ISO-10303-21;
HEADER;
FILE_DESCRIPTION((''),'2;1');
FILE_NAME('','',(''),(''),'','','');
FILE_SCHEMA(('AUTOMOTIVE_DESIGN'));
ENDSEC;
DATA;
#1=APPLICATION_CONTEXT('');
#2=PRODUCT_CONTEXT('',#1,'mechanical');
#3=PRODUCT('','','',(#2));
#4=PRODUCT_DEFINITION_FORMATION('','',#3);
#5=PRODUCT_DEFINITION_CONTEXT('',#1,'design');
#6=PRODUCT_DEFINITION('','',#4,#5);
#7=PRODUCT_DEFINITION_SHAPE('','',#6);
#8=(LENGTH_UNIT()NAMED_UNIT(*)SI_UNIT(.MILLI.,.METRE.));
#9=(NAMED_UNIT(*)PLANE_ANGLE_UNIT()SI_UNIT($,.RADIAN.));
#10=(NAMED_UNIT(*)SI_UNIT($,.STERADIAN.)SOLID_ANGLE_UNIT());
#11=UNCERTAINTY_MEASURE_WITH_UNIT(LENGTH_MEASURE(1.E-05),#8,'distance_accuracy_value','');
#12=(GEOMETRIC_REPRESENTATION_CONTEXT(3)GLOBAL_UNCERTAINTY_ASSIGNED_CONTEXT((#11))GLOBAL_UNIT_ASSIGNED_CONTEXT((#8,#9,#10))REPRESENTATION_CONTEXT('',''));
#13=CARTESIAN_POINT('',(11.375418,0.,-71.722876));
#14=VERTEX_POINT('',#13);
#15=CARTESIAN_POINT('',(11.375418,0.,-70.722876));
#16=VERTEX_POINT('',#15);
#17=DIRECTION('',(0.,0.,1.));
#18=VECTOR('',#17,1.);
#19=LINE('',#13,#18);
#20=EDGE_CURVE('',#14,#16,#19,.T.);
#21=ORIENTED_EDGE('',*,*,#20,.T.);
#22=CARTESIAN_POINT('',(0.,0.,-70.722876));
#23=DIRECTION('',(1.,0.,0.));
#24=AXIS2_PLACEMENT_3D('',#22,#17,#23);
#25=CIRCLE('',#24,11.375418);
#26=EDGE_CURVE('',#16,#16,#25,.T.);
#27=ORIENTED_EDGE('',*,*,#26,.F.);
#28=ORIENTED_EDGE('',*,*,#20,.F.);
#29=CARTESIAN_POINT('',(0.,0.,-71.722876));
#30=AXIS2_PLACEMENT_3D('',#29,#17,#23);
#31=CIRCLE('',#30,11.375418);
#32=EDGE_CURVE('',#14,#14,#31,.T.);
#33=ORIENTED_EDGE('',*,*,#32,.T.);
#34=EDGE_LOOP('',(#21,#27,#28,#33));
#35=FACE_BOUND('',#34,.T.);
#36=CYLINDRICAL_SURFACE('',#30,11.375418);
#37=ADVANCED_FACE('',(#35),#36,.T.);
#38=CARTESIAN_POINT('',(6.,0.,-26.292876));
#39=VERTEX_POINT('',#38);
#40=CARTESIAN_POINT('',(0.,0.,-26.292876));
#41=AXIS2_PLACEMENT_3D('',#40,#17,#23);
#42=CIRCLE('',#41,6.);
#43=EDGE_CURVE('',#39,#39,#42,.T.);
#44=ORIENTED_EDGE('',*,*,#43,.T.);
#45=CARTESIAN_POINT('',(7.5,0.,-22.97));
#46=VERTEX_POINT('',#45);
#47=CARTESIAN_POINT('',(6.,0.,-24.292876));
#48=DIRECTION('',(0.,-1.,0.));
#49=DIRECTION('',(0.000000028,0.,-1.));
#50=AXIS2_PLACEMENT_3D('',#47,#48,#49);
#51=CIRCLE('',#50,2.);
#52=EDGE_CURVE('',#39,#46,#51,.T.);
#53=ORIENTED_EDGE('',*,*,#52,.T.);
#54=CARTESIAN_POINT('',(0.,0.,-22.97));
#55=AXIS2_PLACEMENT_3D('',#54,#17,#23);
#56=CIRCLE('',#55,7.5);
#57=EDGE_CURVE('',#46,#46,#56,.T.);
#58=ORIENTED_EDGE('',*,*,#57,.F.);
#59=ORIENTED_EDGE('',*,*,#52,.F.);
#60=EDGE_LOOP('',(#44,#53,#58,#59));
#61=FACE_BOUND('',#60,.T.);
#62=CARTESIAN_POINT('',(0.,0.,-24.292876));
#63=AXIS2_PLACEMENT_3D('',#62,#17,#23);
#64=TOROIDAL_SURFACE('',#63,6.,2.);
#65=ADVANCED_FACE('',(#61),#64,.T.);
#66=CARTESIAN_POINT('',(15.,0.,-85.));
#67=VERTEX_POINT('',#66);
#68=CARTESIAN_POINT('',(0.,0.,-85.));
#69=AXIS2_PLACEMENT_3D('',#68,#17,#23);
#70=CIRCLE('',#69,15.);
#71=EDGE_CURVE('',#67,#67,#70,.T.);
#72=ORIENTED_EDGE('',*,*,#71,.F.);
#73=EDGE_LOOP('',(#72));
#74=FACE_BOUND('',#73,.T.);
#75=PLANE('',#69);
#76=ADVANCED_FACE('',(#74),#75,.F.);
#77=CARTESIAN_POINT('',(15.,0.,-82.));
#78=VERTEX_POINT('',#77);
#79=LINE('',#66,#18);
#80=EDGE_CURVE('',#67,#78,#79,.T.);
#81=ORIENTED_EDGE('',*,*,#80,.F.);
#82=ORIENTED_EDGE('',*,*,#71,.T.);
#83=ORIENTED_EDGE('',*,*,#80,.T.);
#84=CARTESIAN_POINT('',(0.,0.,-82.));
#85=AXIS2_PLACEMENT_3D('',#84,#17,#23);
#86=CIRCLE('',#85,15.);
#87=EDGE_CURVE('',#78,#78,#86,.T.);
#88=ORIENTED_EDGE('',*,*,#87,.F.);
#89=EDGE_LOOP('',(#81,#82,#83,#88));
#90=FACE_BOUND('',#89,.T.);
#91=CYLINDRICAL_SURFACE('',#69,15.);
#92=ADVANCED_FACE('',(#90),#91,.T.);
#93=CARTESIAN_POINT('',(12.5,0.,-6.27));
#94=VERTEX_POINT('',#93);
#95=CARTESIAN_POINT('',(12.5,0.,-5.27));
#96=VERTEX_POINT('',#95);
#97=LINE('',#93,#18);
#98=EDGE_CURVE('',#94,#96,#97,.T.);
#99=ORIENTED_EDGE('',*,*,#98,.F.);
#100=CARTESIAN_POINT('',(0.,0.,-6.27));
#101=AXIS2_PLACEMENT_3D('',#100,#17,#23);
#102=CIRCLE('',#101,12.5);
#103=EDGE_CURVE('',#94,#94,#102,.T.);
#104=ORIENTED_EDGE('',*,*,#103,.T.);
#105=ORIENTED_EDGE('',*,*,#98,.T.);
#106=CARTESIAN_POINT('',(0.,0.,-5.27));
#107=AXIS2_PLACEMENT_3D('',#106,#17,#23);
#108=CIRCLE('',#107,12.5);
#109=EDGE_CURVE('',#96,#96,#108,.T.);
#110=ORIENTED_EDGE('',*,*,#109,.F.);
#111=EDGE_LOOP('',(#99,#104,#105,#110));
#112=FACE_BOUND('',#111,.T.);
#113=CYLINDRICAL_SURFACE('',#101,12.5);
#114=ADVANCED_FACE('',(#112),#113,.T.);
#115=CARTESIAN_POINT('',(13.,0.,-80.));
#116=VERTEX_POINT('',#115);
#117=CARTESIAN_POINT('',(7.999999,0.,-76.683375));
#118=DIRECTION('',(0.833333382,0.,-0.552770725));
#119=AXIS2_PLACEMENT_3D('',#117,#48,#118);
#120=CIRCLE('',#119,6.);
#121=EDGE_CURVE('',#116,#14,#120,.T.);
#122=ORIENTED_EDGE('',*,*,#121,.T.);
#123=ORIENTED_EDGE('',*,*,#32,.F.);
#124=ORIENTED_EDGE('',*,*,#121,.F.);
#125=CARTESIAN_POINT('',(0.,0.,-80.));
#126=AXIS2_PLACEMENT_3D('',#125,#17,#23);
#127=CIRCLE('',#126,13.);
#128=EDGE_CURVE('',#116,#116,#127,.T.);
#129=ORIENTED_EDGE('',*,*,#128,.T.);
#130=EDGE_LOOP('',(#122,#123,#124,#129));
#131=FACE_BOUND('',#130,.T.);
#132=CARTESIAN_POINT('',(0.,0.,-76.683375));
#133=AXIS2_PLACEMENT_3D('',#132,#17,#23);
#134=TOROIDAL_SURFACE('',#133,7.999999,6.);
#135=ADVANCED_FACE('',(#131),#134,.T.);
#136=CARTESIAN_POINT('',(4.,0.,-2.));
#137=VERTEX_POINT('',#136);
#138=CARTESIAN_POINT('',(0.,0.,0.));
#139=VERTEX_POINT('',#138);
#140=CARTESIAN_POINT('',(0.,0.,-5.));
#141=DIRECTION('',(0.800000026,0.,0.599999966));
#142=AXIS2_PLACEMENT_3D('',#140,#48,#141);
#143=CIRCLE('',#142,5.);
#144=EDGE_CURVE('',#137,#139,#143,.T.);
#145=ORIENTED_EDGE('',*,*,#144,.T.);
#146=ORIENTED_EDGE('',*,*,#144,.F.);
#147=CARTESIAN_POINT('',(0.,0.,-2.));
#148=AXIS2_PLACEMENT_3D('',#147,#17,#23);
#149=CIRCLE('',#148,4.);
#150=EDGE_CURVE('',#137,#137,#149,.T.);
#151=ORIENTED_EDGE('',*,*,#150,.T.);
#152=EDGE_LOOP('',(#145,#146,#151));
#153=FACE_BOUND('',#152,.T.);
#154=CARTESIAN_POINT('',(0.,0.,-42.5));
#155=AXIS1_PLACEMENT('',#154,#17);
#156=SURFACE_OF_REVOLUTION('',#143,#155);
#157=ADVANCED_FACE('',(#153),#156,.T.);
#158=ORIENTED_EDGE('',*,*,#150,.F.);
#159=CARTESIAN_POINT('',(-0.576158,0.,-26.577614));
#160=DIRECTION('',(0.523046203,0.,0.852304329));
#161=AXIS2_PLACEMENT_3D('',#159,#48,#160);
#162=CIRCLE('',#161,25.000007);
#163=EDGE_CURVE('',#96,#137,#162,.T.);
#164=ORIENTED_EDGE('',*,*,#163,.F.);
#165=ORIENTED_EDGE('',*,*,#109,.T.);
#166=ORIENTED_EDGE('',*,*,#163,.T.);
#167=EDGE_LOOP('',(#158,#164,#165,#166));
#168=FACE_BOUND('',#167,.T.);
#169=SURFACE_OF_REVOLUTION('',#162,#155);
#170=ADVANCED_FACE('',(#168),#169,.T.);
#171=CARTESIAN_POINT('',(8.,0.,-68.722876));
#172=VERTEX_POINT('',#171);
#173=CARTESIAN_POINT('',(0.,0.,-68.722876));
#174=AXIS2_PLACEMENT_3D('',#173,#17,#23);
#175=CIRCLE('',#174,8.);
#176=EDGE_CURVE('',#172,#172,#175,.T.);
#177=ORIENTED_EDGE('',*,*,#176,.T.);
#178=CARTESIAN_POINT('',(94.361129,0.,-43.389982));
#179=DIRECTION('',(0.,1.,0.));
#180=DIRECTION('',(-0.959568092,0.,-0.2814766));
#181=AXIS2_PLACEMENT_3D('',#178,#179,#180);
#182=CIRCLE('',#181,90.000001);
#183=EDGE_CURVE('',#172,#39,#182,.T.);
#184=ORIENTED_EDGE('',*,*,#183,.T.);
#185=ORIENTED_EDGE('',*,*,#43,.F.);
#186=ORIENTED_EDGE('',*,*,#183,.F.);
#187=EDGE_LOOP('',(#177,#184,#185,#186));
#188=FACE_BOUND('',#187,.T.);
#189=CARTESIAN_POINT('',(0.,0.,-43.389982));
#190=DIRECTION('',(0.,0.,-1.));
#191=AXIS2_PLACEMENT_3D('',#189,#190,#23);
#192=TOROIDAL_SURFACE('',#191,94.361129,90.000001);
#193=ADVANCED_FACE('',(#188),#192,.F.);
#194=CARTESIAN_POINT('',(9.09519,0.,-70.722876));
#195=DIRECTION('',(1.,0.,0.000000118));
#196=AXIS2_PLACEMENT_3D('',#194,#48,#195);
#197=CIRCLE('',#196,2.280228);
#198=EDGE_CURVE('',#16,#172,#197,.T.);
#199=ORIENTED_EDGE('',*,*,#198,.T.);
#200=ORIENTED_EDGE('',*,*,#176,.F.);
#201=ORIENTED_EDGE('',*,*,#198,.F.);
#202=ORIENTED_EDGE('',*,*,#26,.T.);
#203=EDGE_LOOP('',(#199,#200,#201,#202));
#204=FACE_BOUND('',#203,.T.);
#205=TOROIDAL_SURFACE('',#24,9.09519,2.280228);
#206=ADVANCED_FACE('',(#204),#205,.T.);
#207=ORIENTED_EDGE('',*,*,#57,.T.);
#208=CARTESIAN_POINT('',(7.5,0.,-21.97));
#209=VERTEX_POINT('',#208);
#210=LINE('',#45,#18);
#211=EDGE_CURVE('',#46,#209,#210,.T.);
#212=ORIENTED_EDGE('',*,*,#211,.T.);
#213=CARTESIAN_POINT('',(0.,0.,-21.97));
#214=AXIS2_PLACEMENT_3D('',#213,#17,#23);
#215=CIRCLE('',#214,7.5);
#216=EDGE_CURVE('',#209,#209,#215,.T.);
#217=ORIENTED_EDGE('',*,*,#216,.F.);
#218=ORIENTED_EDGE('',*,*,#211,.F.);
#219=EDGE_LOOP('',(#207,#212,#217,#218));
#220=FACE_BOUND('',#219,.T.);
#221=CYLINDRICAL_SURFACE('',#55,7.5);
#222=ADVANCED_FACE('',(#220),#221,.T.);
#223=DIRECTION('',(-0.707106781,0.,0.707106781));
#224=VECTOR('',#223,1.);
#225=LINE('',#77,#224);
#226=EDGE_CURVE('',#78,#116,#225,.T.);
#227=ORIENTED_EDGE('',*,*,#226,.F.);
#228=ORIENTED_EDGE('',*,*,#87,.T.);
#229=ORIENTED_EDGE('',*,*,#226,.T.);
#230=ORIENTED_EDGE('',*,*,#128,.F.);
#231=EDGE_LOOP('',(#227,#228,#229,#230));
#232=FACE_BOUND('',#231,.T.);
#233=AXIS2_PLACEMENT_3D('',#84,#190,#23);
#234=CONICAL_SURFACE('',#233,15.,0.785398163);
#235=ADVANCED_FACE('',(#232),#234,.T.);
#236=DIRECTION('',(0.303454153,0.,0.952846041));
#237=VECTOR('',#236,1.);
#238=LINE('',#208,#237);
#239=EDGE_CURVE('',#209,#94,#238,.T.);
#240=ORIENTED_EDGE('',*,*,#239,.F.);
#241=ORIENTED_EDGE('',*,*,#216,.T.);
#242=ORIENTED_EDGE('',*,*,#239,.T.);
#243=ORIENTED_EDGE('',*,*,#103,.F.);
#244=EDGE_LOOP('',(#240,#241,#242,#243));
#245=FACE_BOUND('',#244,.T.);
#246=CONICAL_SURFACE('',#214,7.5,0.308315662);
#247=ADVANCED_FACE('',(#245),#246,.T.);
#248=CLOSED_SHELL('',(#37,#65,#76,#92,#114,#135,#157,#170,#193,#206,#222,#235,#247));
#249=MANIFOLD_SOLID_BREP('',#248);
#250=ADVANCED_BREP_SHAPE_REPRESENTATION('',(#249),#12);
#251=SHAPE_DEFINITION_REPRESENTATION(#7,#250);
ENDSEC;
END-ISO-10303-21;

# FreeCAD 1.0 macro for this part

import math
import FreeCAD as App
import Part
import Sketcher
Q = App.Units.Quantity

doc = App.newDocument("Part")
params = doc.addObject("Spreadsheet::Sheet", "Params")
for row, (alias, value) in enumerate([
    ("sketch1_radius", "5 mm"),
    ("sketch1_radius2", "6 mm"),
    ("sketch1_radius3", "90.000001 mm"),
    ("sketch1_radius4", "2 mm"),
    ("sketch1_width", "15 mm"),
    ("revolution_angle", "360 deg"),
], start=1):
    params.set(f"A{row}", alias)
    params.set(f"B{row}", "=" + value)
    params.setAlias(f"B{row}", alias)

body = doc.addObject("PartDesign::Body", "Body")

sketch1 = doc.addObject("Sketcher::SketchObject", "Sketch")
body.addObject(sketch1)
sketch1.AttachmentSupport = (doc.XZ_Plane, [""])
sketch1.MapMode = "FlatFace"
sketch1.addGeometry(Part.LineSegment(App.Vector(12.5, -6.27, 0), App.Vector(12.5, -5.27, 0)), False)
sketch1.addGeometry(Part.ArcOfCircle(Part.Circle(App.Vector(-0.576158, -26.577614, 0), App.Vector(0, 0, 1), 25.000007), math.radians(58.463193), math.radians(79.452752)), False)
sketch1.addGeometry(Part.ArcOfCircle(Part.Circle(App.Vector(0, -5, 0), App.Vector(0, 0, 1), 5), math.radians(36.869895), math.radians(90.000002)), False)
sketch1.addGeometry(Part.LineSegment(App.Vector(0, 0, 0), App.Vector(0, -85, 0)), False)
sketch1.addGeometry(Part.LineSegment(App.Vector(0, -85, 0), App.Vector(15, -85, 0)), False)
sketch1.addGeometry(Part.LineSegment(App.Vector(15, -85, 0), App.Vector(15, -82, 0)), False)
sketch1.addGeometry(Part.LineSegment(App.Vector(15, -82, 0), App.Vector(13, -80, 0)), False)
sketch1.addGeometry(Part.ArcOfCircle(Part.Circle(App.Vector(7.999999, -76.683375, 0), App.Vector(0, 0, 1), 6), math.radians(-33.557305), math.radians(55.766301)), False)
sketch1.addGeometry(Part.LineSegment(App.Vector(11.375418, -71.722876, 0), App.Vector(11.375418, -70.722876, 0)), False)
sketch1.addGeometry(Part.ArcOfCircle(Part.Circle(App.Vector(9.09519, -70.722876, 0), App.Vector(0, 0, 1), 2.280228), math.radians(0.000007), math.radians(118.704881)), False)
sketch1.addGeometry(Part.ArcOfCircle(Part.Circle(App.Vector(94.361129, -43.389982, 0), App.Vector(0, 0, 1), 90.000001), math.radians(169.049093), math.radians(196.348353)), False)
sketch1.addGeometry(Part.ArcOfCircle(Part.Circle(App.Vector(6, -24.292876, 0), App.Vector(0, 0, 1), 2), math.radians(-89.999998), math.radians(41.409625)), False)
sketch1.addGeometry(Part.LineSegment(App.Vector(7.5, -22.97, 0), App.Vector(7.5, -21.97, 0)), False)
sketch1.addGeometry(Part.LineSegment(App.Vector(7.5, -21.97, 0), App.Vector(12.5, -6.27, 0)), False)
sketch1.addConstraint(Sketcher.Constraint("Coincident", 0, 2, 1, 1))
sketch1.addConstraint(Sketcher.Constraint("Coincident", 1, 2, 2, 1))
sketch1.addConstraint(Sketcher.Constraint("Coincident", 2, 2, 3, 1))
sketch1.addConstraint(Sketcher.Constraint("Coincident", 3, 2, 4, 1))
sketch1.addConstraint(Sketcher.Constraint("Coincident", 4, 2, 5, 1))
sketch1.addConstraint(Sketcher.Constraint("Coincident", 5, 2, 6, 1))
sketch1.addConstraint(Sketcher.Constraint("Coincident", 6, 2, 7, 1))
sketch1.addConstraint(Sketcher.Constraint("Coincident", 7, 2, 8, 1))
sketch1.addConstraint(Sketcher.Constraint("Tangent", 8, 2, 9, 1))
sketch1.addConstraint(Sketcher.Constraint("Coincident", 9, 2, 10, 2))
sketch1.addConstraint(Sketcher.Constraint("Coincident", 10, 1, 11, 1))
sketch1.addConstraint(Sketcher.Constraint("Coincident", 11, 2, 12, 1))
sketch1.addConstraint(Sketcher.Constraint("Coincident", 12, 2, 13, 1))
sketch1.addConstraint(Sketcher.Constraint("Coincident", 13, 2, 0, 1))
sketch1.addConstraint(Sketcher.Constraint("Vertical", 0))
sketch1.addConstraint(Sketcher.Constraint("Vertical", 3))
sketch1.addConstraint(Sketcher.Constraint("Horizontal", 4))
sketch1.addConstraint(Sketcher.Constraint("Vertical", 5))
sketch1.addConstraint(Sketcher.Constraint("Vertical", 8))
sketch1.addConstraint(Sketcher.Constraint("Vertical", 12))
sketch1.addConstraint(Sketcher.Constraint("Coincident", 2, 2, -1, 1))
sketch1.addConstraint(Sketcher.Constraint("PointOnObject", 2, 3, -2))
sketch1.addConstraint(Sketcher.Constraint("Vertical", 7, 3, 9, 2))
sketch1.addConstraint(Sketcher.Constraint("Vertical", 11, 3, 10, 1))
sketch1.addConstraint(Sketcher.Constraint("Equal", 0, 8))
sketch1.addConstraint(Sketcher.Constraint("Equal", 8, 12))
sketch1.addConstraint(Sketcher.Constraint("Radius", 2, Q("5 mm")))
sketch1.addConstraint(Sketcher.Constraint("Radius", 7, Q("6 mm")))
sketch1.addConstraint(Sketcher.Constraint("Radius", 10, Q("90.000001 mm")))
sketch1.addConstraint(Sketcher.Constraint("Radius", 11, Q("2 mm")))
sketch1.addConstraint(Sketcher.Constraint("DistanceX", 4, 1, 4, 2, Q("15 mm")))
sketch1.addConstraint(Sketcher.Constraint("DistanceY", 0, 1, 0, 2, Q("1 mm")))
sketch1.addConstraint(Sketcher.Constraint("DistanceY", 3, 2, 3, 1, Q("85 mm")))
sketch1.addConstraint(Sketcher.Constraint("DistanceY", 5, 1, 5, 2, Q("3 mm")))
sketch1.addConstraint(Sketcher.Constraint("Angle", 6, Q("135 deg")))
sketch1.addConstraint(Sketcher.Constraint("DistanceX", -1, 1, 7, 3, Q("7.999999 mm")))
sketch1.addConstraint(Sketcher.Constraint("DistanceX", -1, 1, 11, 3, Q("6 mm")))
sketch1.addConstraint(Sketcher.Constraint("DistanceX", -1, 1, 1, 2, Q("4 mm")))
sketch1.addConstraint(Sketcher.Constraint("DistanceX", -1, 1, 6, 2, Q("13 mm")))
sketch1.addConstraint(Sketcher.Constraint("DistanceY", 9, 3, 9, 2, Q("2 mm")))
sketch1.addConstraint(Sketcher.Constraint("DistanceX", 11, 2, 0, 2, Q("5 mm")))
sketch1.addConstraint(Sketcher.Constraint("DistanceX", -1, 1, 0, 2, Q("12.5 mm")))
sketch1.addConstraint(Sketcher.Constraint("DistanceY", 11, 2, 0, 2, Q("17.7 mm")))
sketch1.addConstraint(Sketcher.Constraint("DistanceY", 0, 2, -1, 1, Q("5.27 mm")))
sketch1.addConstraint(Sketcher.Constraint("Radius", 9, Q("2.280228 mm")))
sketch1.addConstraint(Sketcher.Constraint("Radius", 1, Q("25.000007 mm")))
sketch1.setExpression("Constraints[26]", "Params.sketch1_radius")
sketch1.setExpression("Constraints[27]", "Params.sketch1_radius2")
sketch1.setExpression("Constraints[28]", "Params.sketch1_radius3")
sketch1.setExpression("Constraints[29]", "Params.sketch1_radius4")
sketch1.setExpression("Constraints[30]", "Params.sketch1_width")
revolution = doc.addObject("PartDesign::Revolution", "Revolution")
body.addObject(revolution)
revolution.Profile = sketch1
revolution.ReferenceAxis = (sketch1, ["V_Axis"])
revolution.setExpression("Angle", "Params.revolution_angle")

doc.recompute()
